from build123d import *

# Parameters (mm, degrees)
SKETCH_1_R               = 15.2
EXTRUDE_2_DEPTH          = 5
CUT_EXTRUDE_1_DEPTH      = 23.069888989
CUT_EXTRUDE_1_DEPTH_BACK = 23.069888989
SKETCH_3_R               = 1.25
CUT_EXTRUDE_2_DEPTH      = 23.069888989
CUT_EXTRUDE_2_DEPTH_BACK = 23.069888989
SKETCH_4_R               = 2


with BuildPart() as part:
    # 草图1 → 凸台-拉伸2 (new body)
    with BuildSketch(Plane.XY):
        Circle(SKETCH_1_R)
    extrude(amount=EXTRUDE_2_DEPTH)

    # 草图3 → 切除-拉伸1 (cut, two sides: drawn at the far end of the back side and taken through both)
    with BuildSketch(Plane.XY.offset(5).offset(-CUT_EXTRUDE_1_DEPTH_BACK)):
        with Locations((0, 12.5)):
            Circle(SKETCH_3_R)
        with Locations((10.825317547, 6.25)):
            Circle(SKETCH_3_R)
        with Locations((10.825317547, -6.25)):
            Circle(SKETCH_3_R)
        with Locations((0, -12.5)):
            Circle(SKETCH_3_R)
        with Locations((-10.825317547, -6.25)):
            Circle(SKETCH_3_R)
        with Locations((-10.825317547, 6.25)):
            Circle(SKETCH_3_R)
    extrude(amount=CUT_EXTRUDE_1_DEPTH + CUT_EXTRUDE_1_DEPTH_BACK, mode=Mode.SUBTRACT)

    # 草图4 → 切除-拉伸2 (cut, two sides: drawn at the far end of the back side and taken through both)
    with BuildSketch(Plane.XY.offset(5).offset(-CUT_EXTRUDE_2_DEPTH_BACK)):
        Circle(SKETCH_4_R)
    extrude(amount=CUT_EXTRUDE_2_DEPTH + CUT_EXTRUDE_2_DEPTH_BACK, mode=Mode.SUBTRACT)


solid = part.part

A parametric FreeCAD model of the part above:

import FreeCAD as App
import Part
import Sketcher
from FreeCAD import Vector

doc = App.newDocument("Part")
body = doc.addObject("PartDesign::Body", "Body")

sketch1 = body.newObject("Sketcher::SketchObject", "Sketch")
sketch1.AttachmentSupport = (doc.getObject("XY_Plane"), [""])
sketch1.MapMode = "FlatFace"
sketch1.addGeometry(Part.Circle(Vector(0, 0, 0), Vector(0, 0, 1), 15), False)
sketch1.addConstraint([
    Sketcher.Constraint("Coincident", 0, 3, -1, 1),
    Sketcher.Constraint("Diameter", 0, 30.4),
])
pad1 = body.newObject("PartDesign::Pad", "Pad")
pad1.Profile = sketch1
pad1.Length = 5

sketch2 = body.newObject("Sketcher::SketchObject", "Sketch001")
sketch2.AttachmentSupport = (doc.getObject("XY_Plane"), [""])
sketch2.MapMode = "FlatFace"
sketch2.AttachmentOffset = App.Placement(Vector(0, 0, 5), App.Rotation())
sketch2.addGeometry([
    Part.Circle(Vector(0, 12.5, 0), Vector(0, 0, 1), 1.2),
    Part.Circle(Vector(10.8, 6.2, 0), Vector(0, 0, 1), 1.2),
    Part.Circle(Vector(10.8, -6.2, 0), Vector(0, 0, 1), 1.2),
    Part.Circle(Vector(0, -12.5, 0), Vector(0, 0, 1), 1.2),
    Part.Circle(Vector(-10.8, -6.2, 0), Vector(0, 0, 1), 1.2),
    Part.Circle(Vector(-10.8, 6.2, 0), Vector(0, 0, 1), 1.2),
], False)
sketch2.addConstraint([
    Sketcher.Constraint("Equal", 0, 1),
    Sketcher.Constraint("Equal", 1, 2),
    Sketcher.Constraint("Equal", 2, 3),
    Sketcher.Constraint("Equal", 3, 4),
    Sketcher.Constraint("Equal", 4, 5),
    Sketcher.Constraint("Symmetric", 0, 3, 3, 3, -1, 1),
    Sketcher.Constraint("Symmetric", 1, 3, 4, 3, -1, 1),
    Sketcher.Constraint("Symmetric", 2, 3, 5, 3, -1, 1),
    Sketcher.Constraint("Symmetric", 2, 3, 4, 3, -2),
    Sketcher.Constraint("PointOnObject", 0, 3, -2),
    Sketcher.Constraint("Diameter", 0, 2.5),
    Sketcher.Constraint("DistanceY", 3, 3, 0, 3, 25.0),
    Sketcher.Constraint("DistanceY", 2, 3, 1, 3, 12.5),
    Sketcher.Constraint("DistanceX", -1, 1, 1, 3, 10.825318),
])
pocket1 = body.newObject("PartDesign::Pocket", "Pocket")
pocket1.Profile = sketch2
pocket1.Type = "ThroughAll"
pocket1.Midplane = True

sketch3 = body.newObject("Sketcher::SketchObject", "Sketch002")
sketch3.AttachmentSupport = (doc.getObject("XY_Plane"), [""])
sketch3.MapMode = "FlatFace"
sketch3.AttachmentOffset = App.Placement(Vector(0, 0, 5), App.Rotation())
sketch3.addGeometry(Part.Circle(Vector(0, 0, 0), Vector(0, 0, 1), 2), False)
sketch3.addConstraint([
    Sketcher.Constraint("Coincident", 0, 3, -1, 1),
    Sketcher.Constraint("Diameter", 0, 4.0),
])
pocket2 = body.newObject("PartDesign::Pocket", "Pocket001")
pocket2.Profile = sketch3
pocket2.Type = "ThroughAll"
pocket2.Midplane = True

doc.recompute()
